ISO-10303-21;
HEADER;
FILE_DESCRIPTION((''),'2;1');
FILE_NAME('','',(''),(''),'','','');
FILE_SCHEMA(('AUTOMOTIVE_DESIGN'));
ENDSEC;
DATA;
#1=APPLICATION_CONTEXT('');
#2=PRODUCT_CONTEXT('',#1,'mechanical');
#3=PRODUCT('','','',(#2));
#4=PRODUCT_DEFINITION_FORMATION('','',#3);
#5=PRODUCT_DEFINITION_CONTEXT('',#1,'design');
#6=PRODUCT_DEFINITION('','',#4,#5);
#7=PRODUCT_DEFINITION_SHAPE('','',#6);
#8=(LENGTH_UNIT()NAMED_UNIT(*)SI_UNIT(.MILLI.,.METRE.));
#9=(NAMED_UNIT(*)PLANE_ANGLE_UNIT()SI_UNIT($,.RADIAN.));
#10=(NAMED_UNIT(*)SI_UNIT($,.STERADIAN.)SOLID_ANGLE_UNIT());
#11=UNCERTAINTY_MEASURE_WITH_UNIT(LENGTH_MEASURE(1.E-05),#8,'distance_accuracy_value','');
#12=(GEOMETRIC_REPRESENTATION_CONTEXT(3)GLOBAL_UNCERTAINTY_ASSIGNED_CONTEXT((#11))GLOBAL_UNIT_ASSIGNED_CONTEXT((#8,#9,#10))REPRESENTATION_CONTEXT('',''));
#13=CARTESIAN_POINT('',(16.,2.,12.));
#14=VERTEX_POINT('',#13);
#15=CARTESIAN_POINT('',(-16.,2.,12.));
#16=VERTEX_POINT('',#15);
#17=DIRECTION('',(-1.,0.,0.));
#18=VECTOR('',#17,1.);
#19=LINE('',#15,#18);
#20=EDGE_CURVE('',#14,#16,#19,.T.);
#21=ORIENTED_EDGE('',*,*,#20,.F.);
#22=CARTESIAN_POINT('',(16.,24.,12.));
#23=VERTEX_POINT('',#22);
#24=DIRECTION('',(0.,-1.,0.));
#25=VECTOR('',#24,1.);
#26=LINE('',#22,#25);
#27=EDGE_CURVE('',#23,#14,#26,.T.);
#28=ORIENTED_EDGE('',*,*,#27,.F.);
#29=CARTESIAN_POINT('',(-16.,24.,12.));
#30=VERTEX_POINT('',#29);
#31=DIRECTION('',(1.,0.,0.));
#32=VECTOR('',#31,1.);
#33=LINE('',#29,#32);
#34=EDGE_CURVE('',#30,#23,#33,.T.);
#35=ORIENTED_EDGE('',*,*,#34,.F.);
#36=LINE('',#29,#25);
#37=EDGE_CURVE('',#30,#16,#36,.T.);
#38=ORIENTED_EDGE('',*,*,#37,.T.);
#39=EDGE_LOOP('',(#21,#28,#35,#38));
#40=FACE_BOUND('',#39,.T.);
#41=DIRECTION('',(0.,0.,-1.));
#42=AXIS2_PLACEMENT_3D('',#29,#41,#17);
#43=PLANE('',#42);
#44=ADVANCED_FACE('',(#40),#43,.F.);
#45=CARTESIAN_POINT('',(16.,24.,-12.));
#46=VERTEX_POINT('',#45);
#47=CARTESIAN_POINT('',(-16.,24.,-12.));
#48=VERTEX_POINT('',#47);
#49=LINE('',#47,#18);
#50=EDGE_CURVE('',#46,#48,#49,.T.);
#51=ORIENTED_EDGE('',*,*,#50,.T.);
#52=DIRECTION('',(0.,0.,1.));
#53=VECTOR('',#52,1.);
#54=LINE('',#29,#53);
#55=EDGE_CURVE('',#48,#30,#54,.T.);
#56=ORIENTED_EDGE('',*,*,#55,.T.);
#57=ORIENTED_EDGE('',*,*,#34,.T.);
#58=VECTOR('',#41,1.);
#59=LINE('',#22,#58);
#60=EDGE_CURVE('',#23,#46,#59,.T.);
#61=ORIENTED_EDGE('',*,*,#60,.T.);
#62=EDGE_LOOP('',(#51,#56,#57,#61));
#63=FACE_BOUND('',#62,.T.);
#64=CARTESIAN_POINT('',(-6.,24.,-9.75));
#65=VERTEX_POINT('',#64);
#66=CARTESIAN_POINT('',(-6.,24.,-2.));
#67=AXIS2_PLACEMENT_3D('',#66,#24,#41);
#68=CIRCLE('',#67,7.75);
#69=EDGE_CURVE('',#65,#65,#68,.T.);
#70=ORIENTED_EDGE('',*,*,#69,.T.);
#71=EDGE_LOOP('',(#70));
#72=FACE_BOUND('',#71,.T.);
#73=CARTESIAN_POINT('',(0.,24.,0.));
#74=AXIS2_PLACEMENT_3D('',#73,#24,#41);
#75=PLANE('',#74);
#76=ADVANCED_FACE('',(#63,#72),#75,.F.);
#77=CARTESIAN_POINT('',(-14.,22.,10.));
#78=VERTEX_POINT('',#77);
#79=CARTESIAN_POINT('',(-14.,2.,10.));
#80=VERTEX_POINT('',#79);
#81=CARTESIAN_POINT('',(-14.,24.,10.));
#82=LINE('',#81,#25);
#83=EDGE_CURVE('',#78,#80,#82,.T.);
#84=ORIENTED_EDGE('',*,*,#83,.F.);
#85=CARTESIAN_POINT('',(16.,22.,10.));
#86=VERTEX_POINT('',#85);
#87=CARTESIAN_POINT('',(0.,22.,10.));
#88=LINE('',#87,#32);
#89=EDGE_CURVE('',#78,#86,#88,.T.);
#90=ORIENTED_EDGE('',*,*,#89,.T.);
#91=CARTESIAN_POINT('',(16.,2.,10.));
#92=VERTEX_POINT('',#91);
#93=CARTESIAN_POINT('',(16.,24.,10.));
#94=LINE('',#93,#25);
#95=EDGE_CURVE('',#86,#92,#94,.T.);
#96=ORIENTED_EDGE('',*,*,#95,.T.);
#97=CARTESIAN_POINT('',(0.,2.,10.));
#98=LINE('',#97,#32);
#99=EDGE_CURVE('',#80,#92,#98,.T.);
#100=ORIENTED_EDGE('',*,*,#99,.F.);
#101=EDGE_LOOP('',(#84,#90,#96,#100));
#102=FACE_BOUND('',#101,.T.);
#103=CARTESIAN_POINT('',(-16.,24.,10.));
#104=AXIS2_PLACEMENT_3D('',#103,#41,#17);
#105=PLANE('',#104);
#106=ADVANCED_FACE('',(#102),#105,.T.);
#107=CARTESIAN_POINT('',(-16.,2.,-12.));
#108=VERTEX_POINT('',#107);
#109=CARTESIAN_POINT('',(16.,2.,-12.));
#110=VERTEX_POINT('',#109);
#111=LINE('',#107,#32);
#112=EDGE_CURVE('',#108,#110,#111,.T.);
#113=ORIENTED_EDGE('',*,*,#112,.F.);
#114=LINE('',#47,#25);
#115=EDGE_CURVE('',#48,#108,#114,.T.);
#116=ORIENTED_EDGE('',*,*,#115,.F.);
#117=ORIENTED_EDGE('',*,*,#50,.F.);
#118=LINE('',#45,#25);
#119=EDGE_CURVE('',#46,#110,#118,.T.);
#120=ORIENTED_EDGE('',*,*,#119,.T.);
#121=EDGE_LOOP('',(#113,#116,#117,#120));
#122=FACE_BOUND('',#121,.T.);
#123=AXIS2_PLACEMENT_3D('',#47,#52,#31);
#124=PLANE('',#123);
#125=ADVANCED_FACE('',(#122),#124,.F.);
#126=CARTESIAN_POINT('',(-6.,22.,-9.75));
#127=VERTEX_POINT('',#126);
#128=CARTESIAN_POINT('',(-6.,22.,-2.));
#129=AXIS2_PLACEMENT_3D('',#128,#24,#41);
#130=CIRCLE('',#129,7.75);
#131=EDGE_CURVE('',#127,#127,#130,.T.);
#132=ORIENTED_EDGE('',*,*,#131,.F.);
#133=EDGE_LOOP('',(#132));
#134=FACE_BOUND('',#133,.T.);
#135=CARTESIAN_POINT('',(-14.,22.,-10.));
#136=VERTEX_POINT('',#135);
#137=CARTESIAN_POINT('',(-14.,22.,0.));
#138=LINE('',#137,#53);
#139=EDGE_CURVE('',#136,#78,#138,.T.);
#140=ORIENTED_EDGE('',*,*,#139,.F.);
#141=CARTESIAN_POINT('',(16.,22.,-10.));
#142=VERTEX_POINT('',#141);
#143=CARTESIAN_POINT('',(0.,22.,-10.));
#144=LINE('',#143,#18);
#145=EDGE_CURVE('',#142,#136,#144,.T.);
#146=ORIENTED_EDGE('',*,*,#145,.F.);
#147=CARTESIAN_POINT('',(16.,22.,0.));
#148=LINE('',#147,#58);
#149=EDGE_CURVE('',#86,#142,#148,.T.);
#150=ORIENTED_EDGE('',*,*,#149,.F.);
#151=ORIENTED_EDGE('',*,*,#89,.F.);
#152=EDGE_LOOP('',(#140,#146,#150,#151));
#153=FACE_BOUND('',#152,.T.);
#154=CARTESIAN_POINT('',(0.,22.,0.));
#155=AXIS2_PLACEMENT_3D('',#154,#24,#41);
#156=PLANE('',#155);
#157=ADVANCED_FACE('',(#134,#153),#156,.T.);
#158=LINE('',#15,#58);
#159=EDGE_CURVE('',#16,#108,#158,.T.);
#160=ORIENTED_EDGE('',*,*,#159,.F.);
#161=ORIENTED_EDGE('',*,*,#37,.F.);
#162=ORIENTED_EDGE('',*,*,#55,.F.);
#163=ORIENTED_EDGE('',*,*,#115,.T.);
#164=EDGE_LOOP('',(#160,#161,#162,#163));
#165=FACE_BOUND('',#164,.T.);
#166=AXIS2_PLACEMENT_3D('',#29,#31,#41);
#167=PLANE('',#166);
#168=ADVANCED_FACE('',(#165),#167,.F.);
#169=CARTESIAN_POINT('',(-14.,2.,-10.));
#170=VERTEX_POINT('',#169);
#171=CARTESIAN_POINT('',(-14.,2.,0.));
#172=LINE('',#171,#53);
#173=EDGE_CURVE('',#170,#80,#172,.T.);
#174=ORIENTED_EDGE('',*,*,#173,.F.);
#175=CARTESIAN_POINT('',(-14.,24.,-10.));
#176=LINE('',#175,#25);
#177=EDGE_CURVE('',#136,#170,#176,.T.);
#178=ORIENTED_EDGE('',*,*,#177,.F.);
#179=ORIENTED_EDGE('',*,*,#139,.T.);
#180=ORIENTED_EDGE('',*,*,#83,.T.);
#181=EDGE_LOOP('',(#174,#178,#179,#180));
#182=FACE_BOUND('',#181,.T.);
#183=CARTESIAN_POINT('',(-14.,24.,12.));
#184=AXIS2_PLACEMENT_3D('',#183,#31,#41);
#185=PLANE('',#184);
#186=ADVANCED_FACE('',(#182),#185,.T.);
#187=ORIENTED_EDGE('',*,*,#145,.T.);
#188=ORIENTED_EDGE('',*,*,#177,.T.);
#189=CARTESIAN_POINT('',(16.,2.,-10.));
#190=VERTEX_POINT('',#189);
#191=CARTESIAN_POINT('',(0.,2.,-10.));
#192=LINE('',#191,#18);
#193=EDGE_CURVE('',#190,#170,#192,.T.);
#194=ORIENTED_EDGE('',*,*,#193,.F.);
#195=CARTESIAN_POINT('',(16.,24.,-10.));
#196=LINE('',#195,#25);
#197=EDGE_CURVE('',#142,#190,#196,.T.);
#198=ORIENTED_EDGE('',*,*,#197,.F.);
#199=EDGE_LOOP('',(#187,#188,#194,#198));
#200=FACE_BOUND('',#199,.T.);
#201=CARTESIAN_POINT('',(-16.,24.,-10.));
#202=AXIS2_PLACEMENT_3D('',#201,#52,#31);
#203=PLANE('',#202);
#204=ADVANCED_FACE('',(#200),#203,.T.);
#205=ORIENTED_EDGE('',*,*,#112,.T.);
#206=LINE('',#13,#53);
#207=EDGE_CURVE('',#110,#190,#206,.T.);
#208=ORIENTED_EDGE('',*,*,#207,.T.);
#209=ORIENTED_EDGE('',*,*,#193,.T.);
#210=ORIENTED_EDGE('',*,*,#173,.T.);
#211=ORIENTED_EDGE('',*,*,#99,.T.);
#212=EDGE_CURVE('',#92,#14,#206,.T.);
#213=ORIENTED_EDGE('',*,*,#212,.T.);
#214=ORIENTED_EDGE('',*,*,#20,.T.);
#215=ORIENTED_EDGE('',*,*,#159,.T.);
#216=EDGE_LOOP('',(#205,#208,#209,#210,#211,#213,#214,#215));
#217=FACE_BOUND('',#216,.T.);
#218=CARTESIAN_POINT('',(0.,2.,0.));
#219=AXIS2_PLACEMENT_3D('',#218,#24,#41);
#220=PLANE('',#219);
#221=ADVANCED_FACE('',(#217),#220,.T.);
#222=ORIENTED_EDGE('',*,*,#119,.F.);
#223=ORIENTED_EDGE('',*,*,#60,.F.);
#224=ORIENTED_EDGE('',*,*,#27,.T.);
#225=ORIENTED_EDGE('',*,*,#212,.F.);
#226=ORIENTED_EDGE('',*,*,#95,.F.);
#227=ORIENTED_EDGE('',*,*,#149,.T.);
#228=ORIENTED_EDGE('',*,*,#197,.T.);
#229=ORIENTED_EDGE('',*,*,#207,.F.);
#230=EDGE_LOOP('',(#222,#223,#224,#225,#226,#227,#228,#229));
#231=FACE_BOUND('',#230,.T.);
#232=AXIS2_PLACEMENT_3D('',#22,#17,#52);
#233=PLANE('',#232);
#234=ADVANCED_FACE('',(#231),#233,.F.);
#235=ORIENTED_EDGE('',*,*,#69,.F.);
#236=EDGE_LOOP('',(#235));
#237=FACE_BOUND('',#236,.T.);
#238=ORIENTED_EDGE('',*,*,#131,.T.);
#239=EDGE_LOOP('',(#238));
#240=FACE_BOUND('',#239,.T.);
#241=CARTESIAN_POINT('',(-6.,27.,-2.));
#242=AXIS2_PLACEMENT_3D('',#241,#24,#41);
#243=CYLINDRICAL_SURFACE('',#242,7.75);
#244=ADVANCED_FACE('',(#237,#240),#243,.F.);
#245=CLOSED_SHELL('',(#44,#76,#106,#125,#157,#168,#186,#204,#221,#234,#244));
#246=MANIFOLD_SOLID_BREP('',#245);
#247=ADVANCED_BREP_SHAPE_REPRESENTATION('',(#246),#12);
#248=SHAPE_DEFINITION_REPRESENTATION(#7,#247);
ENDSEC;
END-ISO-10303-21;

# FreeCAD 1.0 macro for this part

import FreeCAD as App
import Part
import Sketcher
from FreeCAD import Vector


def faces_at(feature, points):
    """Names of the faces that lie closest to the given points."""
    faces = feature.Shape.Faces
    near = lambda p: min(range(len(faces)), key=lambda i: faces[i].distToShape(Part.Vertex(*p))[0])
    return sorted({f"Face{near(p) + 1}" for p in points})

doc = App.newDocument("Part")
body = doc.addObject("PartDesign::Body", "Body")

# Sketch on XZ plane
sketch1 = body.newObject("Sketcher::SketchObject", "Sketch")
sketch1.AttachmentSupport = (doc.getObject("XZ_Plane"), [""])
sketch1.MapMode = "FlatFace"
sketch1.addGeometry(Part.LineSegment(Vector(-16, -12, 0), Vector(-16, 12, 0)), False)
sketch1.addGeometry(Part.LineSegment(Vector(-16, 12, 0), Vector(16, 12, 0)), False)
sketch1.addGeometry(Part.LineSegment(Vector(16, 12, 0), Vector(16, -12, 0)), False)
sketch1.addGeometry(Part.LineSegment(Vector(16, -12, 0), Vector(-16, -12, 0)), False)
sketch1.addConstraint(Sketcher.Constraint("Coincident", 0, 2, 1, 1))
sketch1.addConstraint(Sketcher.Constraint("Coincident", 1, 2, 2, 1))
sketch1.addConstraint(Sketcher.Constraint("Coincident", 2, 2, 3, 1))
sketch1.addConstraint(Sketcher.Constraint("Coincident", 3, 2, 0, 1))
sketch1.addConstraint(Sketcher.Constraint("Vertical", 0))
sketch1.addConstraint(Sketcher.Constraint("Horizontal", 1))
sketch1.addConstraint(Sketcher.Constraint("Vertical", 2))
sketch1.addConstraint(Sketcher.Constraint("Horizontal", 3))
sketch1.addConstraint(Sketcher.Constraint("Symmetric", 0, 2, 2, 2, -1, 1))
sketch1.addConstraint(Sketcher.Constraint("DistanceX", 1, 1, 1, 2, 32.0))
sketch1.addConstraint(Sketcher.Constraint("DistanceY", 0, 1, 0, 2, 24.0))
pad1 = body.newObject("PartDesign::Pad", "Pad")
pad1.Profile = sketch1
pad1.Length = 24
pad1.Reversed = True
doc.recompute()

thickness = body.newObject("PartDesign::Thickness", "Thickness")
thickness.Base = (pad1, faces_at(pad1, [(16, 12, 0)]))
thickness.Value = 2
thickness.Reversed = True
thickness.Join = "Intersection"

# Sketch on XZ plane
sketch2 = body.newObject("Sketcher::SketchObject", "Sketch001")
sketch2.AttachmentSupport = (doc.getObject("XZ_Plane"), [""])
sketch2.MapMode = "FlatFace"
sketch2.AttachmentOffset = App.Placement(Vector(0, 0, -22), App.Rotation())
sketch2.addGeometry(Part.Circle(Vector(-6, -2, 0), Vector(0, 0, 1), 7.75), False)
sketch2.addConstraint(Sketcher.Constraint("Diameter", 0, 15.5))
sketch2.addConstraint(Sketcher.Constraint("DistanceX", 0, 3, -1, 1, 6.0))
sketch2.addConstraint(Sketcher.Constraint("DistanceY", 0, 3, -1, 1, 2.0))
pocket1 = body.newObject("PartDesign::Pocket", "Pocket")
pocket1.Profile = sketch2
pocket1.Length = 5

# Sketch on XZ plane
sketch3 = body.newObject("Sketcher::SketchObject", "Sketch002")
sketch3.AttachmentSupport = (doc.getObject("XZ_Plane"), [""])
sketch3.MapMode = "FlatFace"
sketch3.addGeometry(Part.LineSegment(Vector(16, -12, 0), Vector(16, 12, 0)), False)
sketch3.addGeometry(Part.LineSegment(Vector(16, 12, 0), Vector(-16, 12, 0)), False)
sketch3.addGeometry(Part.LineSegment(Vector(-16, 12, 0), Vector(-16, -12, 0)), False)
sketch3.addGeometry(Part.LineSegment(Vector(-16, -12, 0), Vector(16, -12, 0)), False)
sketch3.addConstraint(Sketcher.Constraint("Coincident", 0, 2, 1, 1))
sketch3.addConstraint(Sketcher.Constraint("Coincident", 1, 2, 2, 1))
sketch3.addConstraint(Sketcher.Constraint("Coincident", 2, 2, 3, 1))
sketch3.addConstraint(Sketcher.Constraint("Coincident", 3, 2, 0, 1))
sketch3.addConstraint(Sketcher.Constraint("Vertical", 0))
sketch3.addConstraint(Sketcher.Constraint("Horizontal", 1))
sketch3.addConstraint(Sketcher.Constraint("Vertical", 2))
sketch3.addConstraint(Sketcher.Constraint("Horizontal", 3))
sketch3.addConstraint(Sketcher.Constraint("Symmetric", 0, 2, 2, 2, -1, 1))
sketch3.addConstraint(Sketcher.Constraint("DistanceX", 1, 2, 1, 1, 32.0))
sketch3.addConstraint(Sketcher.Constraint("DistanceY", 0, 1, 0, 2, 24.0))
pocket2 = body.newObject("PartDesign::Pocket", "Pocket001")
pocket2.Profile = sketch3
pocket2.Length = 2

doc.recompute()
